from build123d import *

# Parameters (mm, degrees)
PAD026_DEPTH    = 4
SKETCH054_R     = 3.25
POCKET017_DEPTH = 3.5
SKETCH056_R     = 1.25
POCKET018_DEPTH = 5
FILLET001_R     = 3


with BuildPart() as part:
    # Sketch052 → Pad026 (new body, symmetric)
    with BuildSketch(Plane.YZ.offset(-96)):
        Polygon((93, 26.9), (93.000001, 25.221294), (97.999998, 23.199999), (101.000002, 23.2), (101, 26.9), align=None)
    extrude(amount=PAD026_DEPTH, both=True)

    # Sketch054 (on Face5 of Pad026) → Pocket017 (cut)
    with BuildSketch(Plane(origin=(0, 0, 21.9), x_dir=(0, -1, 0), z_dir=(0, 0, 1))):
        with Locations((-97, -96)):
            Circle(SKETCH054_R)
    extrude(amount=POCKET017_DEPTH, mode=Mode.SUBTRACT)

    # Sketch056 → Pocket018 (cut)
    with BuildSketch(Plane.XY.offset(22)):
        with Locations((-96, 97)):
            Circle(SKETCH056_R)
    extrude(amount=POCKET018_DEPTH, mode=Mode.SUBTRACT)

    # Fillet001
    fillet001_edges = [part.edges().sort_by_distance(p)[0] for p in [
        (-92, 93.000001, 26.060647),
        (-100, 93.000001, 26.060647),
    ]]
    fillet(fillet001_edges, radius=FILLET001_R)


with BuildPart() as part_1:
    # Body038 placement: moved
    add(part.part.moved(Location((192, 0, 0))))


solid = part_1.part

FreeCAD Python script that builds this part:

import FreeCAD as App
import Part
import Sketcher

V = App.Vector


def edges_at(feature, points):
    """Names of the edges that pass closest to the given points."""
    edges = feature.Shape.Edges
    near = lambda p: min(range(len(edges)), key=lambda i: edges[i].distToShape(Part.Vertex(*p))[0])
    return sorted({f"Edge{near(p) + 1}" for p in points})

doc = App.newDocument("Part")
body = doc.addObject("PartDesign::Body", "Body")

# Sketch on YZ plane
sketch1 = body.newObject("Sketcher::SketchObject", "Sketch")
sketch1.AttachmentSupport = (doc.getObject("YZ_Plane"), [""])
sketch1.MapMode = "FlatFace"
sketch1.AttachmentOffset = App.Placement(V(0, 0, -96), App.Rotation())
sketch1.addGeometry([
    Part.LineSegment(V(93, 26.9, 0), V(93, 25.2, 0)),  # 0
    Part.LineSegment(V(93, 25.2, 0), V(98, 23.2, 0)),  # 1
    Part.LineSegment(V(98, 23.2, 0), V(101, 23.2, 0)),  # 2
    Part.LineSegment(V(101, 23.2, 0), V(101, 26.9, 0)),  # 3
    Part.LineSegment(V(101, 26.9, 0), V(93, 26.9, 0)),  # 4
], False)
sketch1.addConstraint([
    Sketcher.Constraint("Coincident", 0, 2, 1, 1),
    Sketcher.Constraint("Coincident", 1, 2, 2, 1),
    Sketcher.Constraint("Coincident", 2, 2, 3, 1),
    Sketcher.Constraint("Coincident", 3, 2, 4, 1),
    Sketcher.Constraint("Coincident", 4, 2, 0, 1),
    Sketcher.Constraint("Vertical", 0),
    Sketcher.Constraint("Horizontal", 2),
    Sketcher.Constraint("Vertical", 3),
    Sketcher.Constraint("Horizontal", 4),
    Sketcher.Constraint("DistanceX", 4, 2, 4, 1, 8.0),
    Sketcher.Constraint("DistanceY", 3, 1, 3, 2, 3.7),
    Sketcher.Constraint("DistanceX", -1, 1, 0, 2, 93.000001),
    Sketcher.Constraint("DistanceX", -1, 1, 1, 2, 97.999998),
    Sketcher.Constraint("DistanceY", -1, 1, 1, 2, 23.199999),
    Sketcher.Constraint("DistanceY", 0, 2, 0, 1, 1.678706),
])
pad1 = body.newObject("PartDesign::Pad", "Pad")
pad1.Profile = sketch1
pad1.Length = 8
pad1.Midplane = True

# Sketch on XY plane
sketch2 = body.newObject("Sketcher::SketchObject", "Sketch001")
sketch2.AttachmentSupport = (doc.getObject("XY_Plane"), [""])
sketch2.MapMode = "FlatFace"
sketch2.AttachmentOffset = App.Placement(V(0, 0, 21.9), App.Rotation())
sketch2.addGeometry(Part.Circle(V(-96, 97, 0), V(0, 0, 1), 3.2), False)
sketch2.addConstraint([
    Sketcher.Constraint("Diameter", 0, 6.5),
    Sketcher.Constraint("DistanceX", 0, 3, -1, 1, 96.0),
    Sketcher.Constraint("DistanceY", -1, 1, 0, 3, 97.0),
])
pocket1 = body.newObject("PartDesign::Pocket", "Pocket")
pocket1.Profile = sketch2
pocket1.Length = 3.5
pocket1.Reversed = True

# Sketch on XY plane
sketch3 = body.newObject("Sketcher::SketchObject", "Sketch002")
sketch3.AttachmentSupport = (doc.getObject("XY_Plane"), [""])
sketch3.MapMode = "FlatFace"
sketch3.AttachmentOffset = App.Placement(V(0, 0, 22), App.Rotation())
sketch3.addGeometry(Part.Circle(V(-96, 97, 0), V(0, 0, 1), 1.2), False)
sketch3.addConstraint([
    Sketcher.Constraint("Diameter", 0, 2.5),
    Sketcher.Constraint("DistanceX", 0, 3, -1, 1, 96.0),
    Sketcher.Constraint("DistanceY", -1, 1, 0, 3, 97.0),
])
pocket2 = body.newObject("PartDesign::Pocket", "Pocket001")
pocket2.Profile = sketch3
pocket2.Length = 5
pocket2.Reversed = True
doc.recompute()

fillet = body.newObject("PartDesign::Fillet", "Fillet")
fillet.Base = (pocket2, edges_at(pocket2, [(-92, 93, 26.061), (-100, 93, 26.061)]))
fillet.Radius = 3
body2 = doc.addObject("PartDesign::Body", "Body001")
doc.recompute()

body.Placement = App.Placement(V(192, 0, 0), App.Rotation(V(0, 0, 1), 0))
boolean = body2.newObject("PartDesign::Boolean", "Boolean")
boolean.Type = "Fuse"
boolean.addObjects([body])

doc.recompute()
